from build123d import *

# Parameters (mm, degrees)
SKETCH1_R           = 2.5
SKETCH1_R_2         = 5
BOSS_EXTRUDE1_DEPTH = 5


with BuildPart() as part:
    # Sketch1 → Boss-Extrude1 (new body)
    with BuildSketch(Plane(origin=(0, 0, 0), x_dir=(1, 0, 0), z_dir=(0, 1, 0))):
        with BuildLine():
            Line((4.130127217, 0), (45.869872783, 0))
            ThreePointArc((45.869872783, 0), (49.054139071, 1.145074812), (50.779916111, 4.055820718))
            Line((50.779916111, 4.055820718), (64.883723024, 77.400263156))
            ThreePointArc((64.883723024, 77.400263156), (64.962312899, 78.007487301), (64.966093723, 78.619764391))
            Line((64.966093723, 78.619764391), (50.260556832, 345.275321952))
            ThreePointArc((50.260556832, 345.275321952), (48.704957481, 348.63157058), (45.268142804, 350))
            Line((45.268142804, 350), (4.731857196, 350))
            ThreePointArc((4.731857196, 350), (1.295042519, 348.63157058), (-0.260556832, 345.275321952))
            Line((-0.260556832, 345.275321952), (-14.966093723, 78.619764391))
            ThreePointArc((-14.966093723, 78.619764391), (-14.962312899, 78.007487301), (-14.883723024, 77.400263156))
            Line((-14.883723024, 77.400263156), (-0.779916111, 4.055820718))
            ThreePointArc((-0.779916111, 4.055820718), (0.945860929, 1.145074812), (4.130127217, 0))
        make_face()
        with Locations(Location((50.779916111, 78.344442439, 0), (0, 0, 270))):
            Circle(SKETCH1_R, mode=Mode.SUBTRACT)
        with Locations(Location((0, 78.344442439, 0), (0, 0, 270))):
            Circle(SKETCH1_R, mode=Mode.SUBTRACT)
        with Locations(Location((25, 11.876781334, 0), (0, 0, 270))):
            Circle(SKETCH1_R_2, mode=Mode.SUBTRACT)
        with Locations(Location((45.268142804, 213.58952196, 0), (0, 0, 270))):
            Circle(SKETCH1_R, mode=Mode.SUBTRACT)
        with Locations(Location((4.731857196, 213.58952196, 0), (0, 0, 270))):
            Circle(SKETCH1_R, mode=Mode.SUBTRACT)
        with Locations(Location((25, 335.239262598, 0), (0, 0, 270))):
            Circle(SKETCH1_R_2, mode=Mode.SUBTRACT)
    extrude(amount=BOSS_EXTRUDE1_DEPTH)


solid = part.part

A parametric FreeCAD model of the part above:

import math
import FreeCAD as App
import Part
import Sketcher

V = App.Vector

doc = App.newDocument("Part")
body = doc.addObject("PartDesign::Body", "Body")

sketch1 = doc.addObject("Sketcher::SketchObject", "Sketch")
body.addObject(sketch1)
sketch1.AttachmentSupport = (doc.XZ_Plane, [""])
sketch1.MapMode = "FlatFace"
sketch1.addGeometry(Part.LineSegment(V(4.1, 0, 0), V(45.9, 0, 0)), False)
sketch1.addGeometry(Part.ArcOfCircle(Part.Circle(V(45.9, -5, 0), V(0, 0, 1), 5), math.radians(11), math.radians(90)), False)
sketch1.addGeometry(Part.LineSegment(V(50.8, -4.1, 0), V(64.9, -77.4, 0)), False)
sketch1.addGeometry(Part.ArcOfCircle(Part.Circle(V(60, -78.3, 0), V(0, 0, 1), 5), math.radians(-3.16), math.radians(10.88)), False)
sketch1.addGeometry(Part.LineSegment(V(65, -78.6, 0), V(50.3, -345.3, 0)), False)
sketch1.addGeometry(Part.ArcOfCircle(Part.Circle(V(45.3, -345, 0), V(0, 0, 1), 5), math.radians(-90), math.radians(-3)), False)
sketch1.addGeometry(Part.LineSegment(V(45.3, -350, 0), V(4.7, -350, 0)), False)
sketch1.addGeometry(Part.ArcOfCircle(Part.Circle(V(4.7, -345, 0), V(0, 0, 1), 5), math.radians(-177), math.radians(-90)), False)
sketch1.addGeometry(Part.LineSegment(V(-0.3, -345.3, 0), V(-15, -78.6, 0)), False)
sketch1.addGeometry(Part.ArcOfCircle(Part.Circle(V(-10, -78.3, 0), V(0, 0, 1), 5), math.radians(169.12), math.radians(183.16)), False)
sketch1.addGeometry(Part.LineSegment(V(-14.9, -77.4, 0), V(-0.8, -4.1, 0)), False)
sketch1.addGeometry(Part.ArcOfCircle(Part.Circle(V(4.1, -5, 0), V(0, 0, 1), 5), math.radians(90), math.radians(169)), False)
sketch1.addGeometry(Part.Circle(V(0, -78.3, 0), V(0, 0, 1), 2.5), False)
sketch1.addGeometry(Part.Circle(V(25, -11.9, 0), V(0, 0, 1), 5), False)
sketch1.addGeometry(Part.Circle(V(50.8, -78.3, 0), V(0, 0, 1), 2.5), False)
sketch1.addGeometry(Part.Circle(V(4.7, -213.6, 0), V(0, 0, 1), 2.5), False)
sketch1.addGeometry(Part.Circle(V(25, -335.2, 0), V(0, 0, 1), 5), False)
sketch1.addGeometry(Part.Circle(V(45.3, -213.6, 0), V(0, 0, 1), 2.5), False)
sketch1.addConstraint(Sketcher.Constraint("Tangent", 0, 2, 1, 2))
sketch1.addConstraint(Sketcher.Constraint("Tangent", 1, 1, 2, 1))
sketch1.addConstraint(Sketcher.Constraint("Tangent", 2, 2, 3, 2))
sketch1.addConstraint(Sketcher.Constraint("Tangent", 3, 1, 4, 1))
sketch1.addConstraint(Sketcher.Constraint("Tangent", 4, 2, 5, 2))
sketch1.addConstraint(Sketcher.Constraint("Tangent", 5, 1, 6, 1))
sketch1.addConstraint(Sketcher.Constraint("Tangent", 6, 2, 7, 2))
sketch1.addConstraint(Sketcher.Constraint("Tangent", 7, 1, 8, 1))
sketch1.addConstraint(Sketcher.Constraint("Tangent", 8, 2, 9, 2))
sketch1.addConstraint(Sketcher.Constraint("Tangent", 9, 1, 10, 1))
sketch1.addConstraint(Sketcher.Constraint("Tangent", 10, 2, 11, 2))
sketch1.addConstraint(Sketcher.Constraint("Tangent", 11, 1, 0, 1))
sketch1.addConstraint(Sketcher.Constraint("Horizontal", 0))
sketch1.addConstraint(Sketcher.Constraint("Horizontal", 6))
sketch1.addConstraint(Sketcher.Constraint("Equal", 1, 3))
sketch1.addConstraint(Sketcher.Constraint("Equal", 3, 5))
sketch1.addConstraint(Sketcher.Constraint("Equal", 5, 7))
sketch1.addConstraint(Sketcher.Constraint("Equal", 7, 9))
sketch1.addConstraint(Sketcher.Constraint("Equal", 9, 11))
sketch1.addConstraint(Sketcher.Constraint("Equal", 11, 13))
sketch1.addConstraint(Sketcher.Constraint("Equal", 12, 14))
sketch1.addConstraint(Sketcher.Constraint("Equal", 14, 15))
sketch1.addConstraint(Sketcher.Constraint("Equal", 13, 16))
sketch1.addConstraint(Sketcher.Constraint("Equal", 15, 17))
sketch1.addConstraint(Sketcher.Constraint("PointOnObject", 12, 3, -2))
sketch1.addConstraint(Sketcher.Constraint("PointOnObject", 0, 2, -1))
sketch1.addConstraint(Sketcher.Constraint("Horizontal", 3, 3, 9, 3))
sketch1.addConstraint(Sketcher.Constraint("Horizontal", 9, 3, 12, 3))
sketch1.addConstraint(Sketcher.Constraint("Horizontal", 12, 3, 14, 3))
sketch1.addConstraint(Sketcher.Constraint("Horizontal", 15, 3, 17, 3))
sketch1.addConstraint(Sketcher.Constraint("Horizontal", 4, 2, 7, 1))
sketch1.addConstraint(Sketcher.Constraint("Horizontal", 2, 2, 9, 1))
sketch1.addConstraint(Sketcher.Constraint("Vertical", 7, 3, 15, 3))
sketch1.addConstraint(Sketcher.Constraint("Vertical", 13, 3, 16, 3))
sketch1.addConstraint(Sketcher.Constraint("Vertical", 5, 3, 17, 3))
sketch1.addConstraint(Sketcher.Constraint("Vertical", 14, 3, 1, 1))
sketch1.addConstraint(Sketcher.Constraint("Diameter", 12, 5.0))
sketch1.addConstraint(Sketcher.Constraint("Diameter", 13, 10.0))
sketch1.addConstraint(Sketcher.Constraint("DistanceY", 5, 3, -1, 1, 345.0))
sketch1.addConstraint(Sketcher.Constraint("DistanceX", -1, 1, 13, 3, 25.0))
sketch1.addConstraint(Sketcher.Constraint("DistanceY", 3, 1, 2, 2, 1.219501))
sketch1.addConstraint(Sketcher.Constraint("DistanceX", 7, 3, 4, 2, 45.5287))
sketch1.addConstraint(Sketcher.Constraint("DistanceY", 4, 2, 17, 3, 131.6858))
sketch1.addConstraint(Sketcher.Constraint("Distance", 4, 267.060741))
sketch1.addConstraint(Sketcher.Constraint("DistanceX", 0, 1, 0, 2, 41.739746))
sketch1.addConstraint(Sketcher.Constraint("DistanceX", -1, 1, 3, 3, 59.97368))
sketch1.addConstraint(Sketcher.Constraint("DistanceY", 13, 3, -1, 1, 11.876781))
sketch1.addConstraint(Sketcher.Constraint("DistanceY", 16, 3, 15, 3, 121.649741))
pad1 = doc.addObject("PartDesign::Pad", "Pad")
body.addObject(pad1)
pad1.Profile = sketch1
pad1.Length = 5
pad1.Reversed = True

doc.recompute()
